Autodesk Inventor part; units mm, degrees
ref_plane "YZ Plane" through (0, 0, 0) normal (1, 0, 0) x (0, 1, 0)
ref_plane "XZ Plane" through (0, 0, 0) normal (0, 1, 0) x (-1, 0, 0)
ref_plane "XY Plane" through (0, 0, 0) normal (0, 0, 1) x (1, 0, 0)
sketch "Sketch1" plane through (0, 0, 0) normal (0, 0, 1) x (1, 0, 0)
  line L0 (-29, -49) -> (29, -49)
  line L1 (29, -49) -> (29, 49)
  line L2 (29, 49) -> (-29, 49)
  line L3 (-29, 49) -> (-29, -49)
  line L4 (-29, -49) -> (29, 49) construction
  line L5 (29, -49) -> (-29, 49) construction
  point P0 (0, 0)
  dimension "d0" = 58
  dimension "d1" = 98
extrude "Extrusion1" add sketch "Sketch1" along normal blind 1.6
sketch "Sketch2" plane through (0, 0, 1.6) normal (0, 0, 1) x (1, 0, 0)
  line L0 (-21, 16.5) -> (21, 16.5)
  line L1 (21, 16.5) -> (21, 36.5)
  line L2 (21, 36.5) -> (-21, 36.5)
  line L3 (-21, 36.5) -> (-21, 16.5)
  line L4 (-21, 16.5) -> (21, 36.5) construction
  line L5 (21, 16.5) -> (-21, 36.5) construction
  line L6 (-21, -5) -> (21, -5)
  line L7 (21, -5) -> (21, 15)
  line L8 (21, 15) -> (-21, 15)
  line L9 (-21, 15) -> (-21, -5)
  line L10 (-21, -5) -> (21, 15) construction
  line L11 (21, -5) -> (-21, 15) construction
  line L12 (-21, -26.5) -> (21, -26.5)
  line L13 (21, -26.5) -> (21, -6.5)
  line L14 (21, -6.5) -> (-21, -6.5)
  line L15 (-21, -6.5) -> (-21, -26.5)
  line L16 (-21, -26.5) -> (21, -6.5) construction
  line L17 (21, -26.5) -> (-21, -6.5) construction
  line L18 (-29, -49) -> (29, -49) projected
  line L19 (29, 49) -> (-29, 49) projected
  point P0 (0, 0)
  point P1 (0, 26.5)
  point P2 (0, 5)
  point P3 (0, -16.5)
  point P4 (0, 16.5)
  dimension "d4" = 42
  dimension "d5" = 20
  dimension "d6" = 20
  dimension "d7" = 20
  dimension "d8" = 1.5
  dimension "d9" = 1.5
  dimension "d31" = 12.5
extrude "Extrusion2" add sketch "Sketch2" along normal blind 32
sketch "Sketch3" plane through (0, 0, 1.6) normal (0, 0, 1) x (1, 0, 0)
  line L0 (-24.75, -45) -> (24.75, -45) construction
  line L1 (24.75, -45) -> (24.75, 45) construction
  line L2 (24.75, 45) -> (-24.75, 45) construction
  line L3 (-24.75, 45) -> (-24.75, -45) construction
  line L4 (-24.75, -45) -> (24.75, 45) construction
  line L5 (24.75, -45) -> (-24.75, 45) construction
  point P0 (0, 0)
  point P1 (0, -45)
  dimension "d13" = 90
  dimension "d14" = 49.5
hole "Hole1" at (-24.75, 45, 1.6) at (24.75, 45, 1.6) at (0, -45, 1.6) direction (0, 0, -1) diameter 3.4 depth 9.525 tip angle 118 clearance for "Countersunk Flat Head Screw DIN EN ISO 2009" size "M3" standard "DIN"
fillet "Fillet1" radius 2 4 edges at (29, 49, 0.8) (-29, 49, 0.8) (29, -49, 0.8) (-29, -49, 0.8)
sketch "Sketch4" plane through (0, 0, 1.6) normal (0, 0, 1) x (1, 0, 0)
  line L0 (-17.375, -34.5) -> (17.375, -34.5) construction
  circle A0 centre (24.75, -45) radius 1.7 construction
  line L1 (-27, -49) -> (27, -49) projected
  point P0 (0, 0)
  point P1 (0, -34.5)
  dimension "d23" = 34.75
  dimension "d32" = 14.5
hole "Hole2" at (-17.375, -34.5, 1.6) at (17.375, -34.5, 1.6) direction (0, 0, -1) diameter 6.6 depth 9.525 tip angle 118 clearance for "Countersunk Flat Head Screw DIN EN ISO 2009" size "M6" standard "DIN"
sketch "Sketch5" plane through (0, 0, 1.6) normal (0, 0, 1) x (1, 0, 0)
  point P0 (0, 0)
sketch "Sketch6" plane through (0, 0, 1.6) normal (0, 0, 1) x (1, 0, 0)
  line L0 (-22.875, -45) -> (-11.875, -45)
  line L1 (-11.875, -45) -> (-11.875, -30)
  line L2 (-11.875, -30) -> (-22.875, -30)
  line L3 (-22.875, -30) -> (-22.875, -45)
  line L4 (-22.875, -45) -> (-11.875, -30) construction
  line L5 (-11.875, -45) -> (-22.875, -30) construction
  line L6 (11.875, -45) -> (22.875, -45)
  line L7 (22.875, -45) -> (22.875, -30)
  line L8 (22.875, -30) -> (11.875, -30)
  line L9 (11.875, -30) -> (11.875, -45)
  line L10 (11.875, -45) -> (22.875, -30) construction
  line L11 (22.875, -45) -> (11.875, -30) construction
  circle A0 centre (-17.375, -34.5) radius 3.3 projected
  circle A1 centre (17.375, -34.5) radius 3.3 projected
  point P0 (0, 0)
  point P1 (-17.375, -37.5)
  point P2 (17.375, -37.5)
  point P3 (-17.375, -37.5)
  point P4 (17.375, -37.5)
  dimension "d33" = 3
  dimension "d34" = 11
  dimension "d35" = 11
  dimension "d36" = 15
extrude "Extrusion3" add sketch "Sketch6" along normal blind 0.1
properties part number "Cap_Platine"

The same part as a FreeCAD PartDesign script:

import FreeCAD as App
import Part
import Sketcher

V = App.Vector
Q = App.Units.Quantity


def edges_at(feature, points):
    """Names of the edges that pass closest to the given points."""
    edges = feature.Shape.Edges
    near = lambda p: min(range(len(edges)), key=lambda i: edges[i].distToShape(Part.Vertex(*p))[0])
    return sorted({f"Edge{near(p) + 1}" for p in points})

doc = App.newDocument("Part")
params = doc.addObject("Spreadsheet::Sheet", "Params")
for row, (alias, value) in enumerate([
    ("sketch1_width", "58 mm"),
    ("sketch1_height", "98 mm"),
    ("pad1_length", "1.6 mm"),
    ("sketch2_width", "42 mm"),
    ("sketch2_height", "20 mm"),
    ("pad2_length", "32 mm"),
    ("sketch3_diameter", "3.4 mm"),
    ("hole_diameter", "3.4 mm"),
    ("hole_depth", "9.525 mm"),
    ("fillet_radius", "2 mm"),
    ("sketch4_diameter", "6.6 mm"),
    ("hole2_diameter", "6.6 mm"),
    ("hole2_depth", "9.525 mm"),
    ("sketch5_width", "11 mm"),
    ("sketch5_height", "15 mm"),
    ("sketch5_diameter", "6.6 mm"),
    ("pad3_length", "0.1 mm"),
], start=1):
    params.set(f"A{row}", alias)
    params.set(f"B{row}", "=" + value)
    params.setAlias(f"B{row}", alias)

body = doc.addObject("PartDesign::Body", "Body")

# Sketch on XY plane
sketch1 = body.newObject("Sketcher::SketchObject", "Sketch")
sketch1.AttachmentSupport = (doc.getObject("XY_Plane"), [""])
sketch1.MapMode = "FlatFace"
sketch1.addGeometry([
    Part.LineSegment(V(-29, 49, 0), V(-29, -49, 0)),
    Part.LineSegment(V(-29, -49, 0), V(29, -49, 0)),
    Part.LineSegment(V(29, -49, 0), V(29, 49, 0)),
    Part.LineSegment(V(29, 49, 0), V(-29, 49, 0)),
], False)
sketch1.addConstraint([
    Sketcher.Constraint("Coincident", 0, 2, 1, 1),
    Sketcher.Constraint("Coincident", 1, 2, 2, 1),
    Sketcher.Constraint("Coincident", 2, 2, 3, 1),
    Sketcher.Constraint("Coincident", 3, 2, 0, 1),
    Sketcher.Constraint("Vertical", 0),
    Sketcher.Constraint("Horizontal", 1),
    Sketcher.Constraint("Vertical", 2),
    Sketcher.Constraint("Horizontal", 3),
    Sketcher.Constraint("Symmetric", 0, 2, 2, 2, -1, 1),
    Sketcher.Constraint("DistanceX", 1, 1, 1, 2, Q("58 mm")),
    Sketcher.Constraint("DistanceY", 0, 2, 0, 1, Q("98 mm")),
])
sketch1.setExpression("Constraints[9]", "Params.sketch1_width")
sketch1.setExpression("Constraints[10]", "Params.sketch1_height")
pad1 = body.newObject("PartDesign::Pad", "Pad")
pad1.Profile = sketch1
pad1.setExpression("Length", "Params.pad1_length")

# Sketch on XY plane
sketch2 = body.newObject("Sketcher::SketchObject", "Sketch001")
sketch2.AttachmentSupport = (doc.getObject("XY_Plane"), [""])
sketch2.MapMode = "FlatFace"
sketch2.AttachmentOffset = App.Placement(V(0, 0, 1.6), App.Rotation())
sketch2.addGeometry([
    Part.LineSegment(V(-21, 36, 0), V(-21, 16, 0)),  # 0
    Part.LineSegment(V(-21, 16, 0), V(21, 16, 0)),  # 1
    Part.LineSegment(V(21, 16, 0), V(21, 36, 0)),  # 2
    Part.LineSegment(V(21, 36, 0), V(-21, 36, 0)),  # 3
    Part.LineSegment(V(-21, 15, 0), V(-21, -5, 0)),  # 4
    Part.LineSegment(V(-21, -5, 0), V(21, -5, 0)),  # 5
    Part.LineSegment(V(21, -5, 0), V(21, 15, 0)),  # 6
    Part.LineSegment(V(21, 15, 0), V(-21, 15, 0)),  # 7
    Part.LineSegment(V(-21, -6, 0), V(-21, -26, 0)),  # 8
    Part.LineSegment(V(-21, -26, 0), V(21, -26, 0)),  # 9
    Part.LineSegment(V(21, -26, 0), V(21, -6, 0)),  # 10
    Part.LineSegment(V(21, -6, 0), V(-21, -6, 0)),  # 11
], False)
sketch2.addConstraint([
    Sketcher.Constraint("Coincident", 0, 2, 1, 1),
    Sketcher.Constraint("Coincident", 1, 2, 2, 1),
    Sketcher.Constraint("Coincident", 2, 2, 3, 1),
    Sketcher.Constraint("Coincident", 3, 2, 0, 1),
    Sketcher.Constraint("Coincident", 4, 2, 5, 1),
    Sketcher.Constraint("Coincident", 5, 2, 6, 1),
    Sketcher.Constraint("Coincident", 6, 2, 7, 1),
    Sketcher.Constraint("Coincident", 7, 2, 4, 1),
    Sketcher.Constraint("Coincident", 8, 2, 9, 1),
    Sketcher.Constraint("Coincident", 9, 2, 10, 1),
    Sketcher.Constraint("Coincident", 10, 2, 11, 1),
    Sketcher.Constraint("Coincident", 11, 2, 8, 1),
    Sketcher.Constraint("Vertical", 0),
    Sketcher.Constraint("Horizontal", 1),
    Sketcher.Constraint("Vertical", 2),
    Sketcher.Constraint("Horizontal", 3),
    Sketcher.Constraint("Vertical", 4),
    Sketcher.Constraint("Horizontal", 5),
    Sketcher.Constraint("Vertical", 6),
    Sketcher.Constraint("Horizontal", 7),
    Sketcher.Constraint("Vertical", 8),
    Sketcher.Constraint("Horizontal", 9),
    Sketcher.Constraint("Vertical", 10),
    Sketcher.Constraint("Horizontal", 11),
    Sketcher.Constraint("Vertical", 3, 2, 4, 2),
    Sketcher.Constraint("Vertical", 2, 2, 5, 2),
    Sketcher.Constraint("Vertical", 7, 2, 8, 2),
    Sketcher.Constraint("Vertical", 6, 2, 9, 2),
    Sketcher.Constraint("Equal", 2, 4),
    Sketcher.Constraint("Equal", 6, 8),
    Sketcher.Constraint("DistanceX", 1, 1, 1, 2, Q("42 mm")),
    Sketcher.Constraint("DistanceY", 0, 2, 0, 1, Q("20 mm")),
    Sketcher.Constraint("DistanceY", 6, 2, 1, 2, Q("1.5 mm")),
    Sketcher.Constraint("DistanceY", 10, 2, 5, 2, Q("1.5 mm")),
    Sketcher.Constraint("DistanceX", 0, 2, -1, 1, Q("21 mm")),
    Sketcher.Constraint("DistanceY", 4, 2, -1, 1, Q("5 mm")),
])
sketch2.setExpression("Constraints[30]", "Params.sketch2_width")
sketch2.setExpression("Constraints[31]", "Params.sketch2_height")
pad2 = body.newObject("PartDesign::Pad", "Pad001")
pad2.Profile = sketch2
pad2.setExpression("Length", "Params.pad2_length")

# Sketch on XY plane
sketch3 = body.newObject("Sketcher::SketchObject", "Sketch002")
sketch3.AttachmentSupport = (doc.getObject("XY_Plane"), [""])
sketch3.MapMode = "FlatFace"
sketch3.AttachmentOffset = App.Placement(V(0, 0, 1.6), App.Rotation())
sketch3.addGeometry([
    Part.Circle(V(-24.8, 45, 0), V(0, 0, 1), 1.7),
    Part.Circle(V(24.8, 45, 0), V(0, 0, 1), 1.7),
    Part.Circle(V(0, -45, 0), V(0, 0, 1), 1.7),
], False)
sketch3.addConstraint([
    Sketcher.Constraint("Equal", 0, 1),
    Sketcher.Constraint("Equal", 1, 2),
    Sketcher.Constraint("Symmetric", 0, 3, 1, 3, -2),
    Sketcher.Constraint("PointOnObject", 2, 3, -2),
    Sketcher.Constraint("Diameter", 0, Q("3.4 mm")),
    Sketcher.Constraint("DistanceY", -1, 1, 0, 3, Q("45 mm")),
    Sketcher.Constraint("DistanceY", 2, 3, -1, 1, Q("45 mm")),
    Sketcher.Constraint("DistanceX", 0, 3, 1, 3, Q("49.5 mm")),
])
sketch3.setExpression("Constraints[4]", "Params.sketch3_diameter")
doc.recompute()
hole = body.newObject("PartDesign::Hole", "Hole")
hole.Profile = sketch3
hole.ThreadType = "None"
hole.setExpression("Diameter", "Params.hole_diameter")
hole.DepthType = "Dimension"
hole.setExpression("Depth", "Params.hole_depth")
hole.DrillPoint = "Angled"
hole.DrillPointAngle = 118
doc.recompute()

fillet = body.newObject("PartDesign::Fillet", "Fillet")
fillet.Base = (hole, edges_at(hole, [
    (29, 49, 0.8),
    (-29, 49, 0.8),
    (29, -49, 0.8),
    (-29, -49, 0.8),
]))
fillet.setExpression("Radius", "Params.fillet_radius")

# Sketch on XY plane
sketch4 = body.newObject("Sketcher::SketchObject", "Sketch003")
sketch4.AttachmentSupport = (doc.getObject("XY_Plane"), [""])
sketch4.MapMode = "FlatFace"
sketch4.AttachmentOffset = App.Placement(V(0, 0, 1.6), App.Rotation())
sketch4.addGeometry([
    Part.Circle(V(-17.4, -34.5, 0), V(0, 0, 1), 3.3),
    Part.Circle(V(17.4, -34.5, 0), V(0, 0, 1), 3.3),
], False)
sketch4.addConstraint([
    Sketcher.Constraint("Equal", 0, 1),
    Sketcher.Constraint("Symmetric", 0, 3, 1, 3, -2),
    Sketcher.Constraint("Diameter", 0, Q("6.6 mm")),
    Sketcher.Constraint("DistanceY", 0, 3, -1, 1, Q("34.5 mm")),
    Sketcher.Constraint("DistanceX", 0, 3, 1, 3, Q("34.75 mm")),
])
sketch4.setExpression("Constraints[2]", "Params.sketch4_diameter")
doc.recompute()
hole2 = body.newObject("PartDesign::Hole", "Hole001")
hole2.Profile = sketch4
hole2.ThreadType = "None"
hole2.setExpression("Diameter", "Params.hole2_diameter")
hole2.DepthType = "Dimension"
hole2.setExpression("Depth", "Params.hole2_depth")
hole2.DrillPoint = "Angled"
hole2.DrillPointAngle = 118

# Sketch on XY plane
sketch5 = body.newObject("Sketcher::SketchObject", "Sketch004")
sketch5.AttachmentSupport = (doc.getObject("XY_Plane"), [""])
sketch5.MapMode = "FlatFace"
sketch5.AttachmentOffset = App.Placement(V(0, 0, 1.6), App.Rotation())
sketch5.addGeometry([
    Part.LineSegment(V(-22.9, -30, 0), V(-22.9, -45, 0)),  # 0
    Part.LineSegment(V(-22.9, -45, 0), V(-11.9, -45, 0)),  # 1
    Part.LineSegment(V(-11.9, -45, 0), V(-11.9, -30, 0)),  # 2
    Part.LineSegment(V(-11.9, -30, 0), V(-22.9, -30, 0)),  # 3
    Part.Circle(V(-17.4, -34.5, 0), V(0, 0, 1), 3.3),  # 4
    Part.LineSegment(V(11.9, -30, 0), V(11.9, -45, 0)),  # 5
    Part.LineSegment(V(11.9, -45, 0), V(22.9, -45, 0)),  # 6
    Part.LineSegment(V(22.9, -45, 0), V(22.9, -30, 0)),  # 7
    Part.LineSegment(V(22.9, -30, 0), V(11.9, -30, 0)),  # 8
    Part.Circle(V(17.4, -34.5, 0), V(0, 0, 1), 3.3),  # 9
], False)
sketch5.addConstraint([
    Sketcher.Constraint("Coincident", 0, 2, 1, 1),
    Sketcher.Constraint("Coincident", 1, 2, 2, 1),
    Sketcher.Constraint("Coincident", 2, 2, 3, 1),
    Sketcher.Constraint("Coincident", 3, 2, 0, 1),
    Sketcher.Constraint("Coincident", 5, 2, 6, 1),
    Sketcher.Constraint("Coincident", 6, 2, 7, 1),
    Sketcher.Constraint("Coincident", 7, 2, 8, 1),
    Sketcher.Constraint("Coincident", 8, 2, 5, 1),
    Sketcher.Constraint("Vertical", 0),
    Sketcher.Constraint("Horizontal", 1),
    Sketcher.Constraint("Vertical", 2),
    Sketcher.Constraint("Horizontal", 3),
    Sketcher.Constraint("Vertical", 5),
    Sketcher.Constraint("Horizontal", 6),
    Sketcher.Constraint("Vertical", 7),
    Sketcher.Constraint("Horizontal", 8),
    Sketcher.Constraint("Equal", 4, 9),
    Sketcher.Constraint("Symmetric", 4, 3, 9, 3, -2),
    Sketcher.Constraint("Symmetric", 1, 2, 5, 2, -2),
    Sketcher.Constraint("Symmetric", 3, 2, 7, 2, -2),
    Sketcher.Constraint("DistanceX", 1, 1, 1, 2, Q("11 mm")),
    Sketcher.Constraint("DistanceY", 0, 2, 0, 1, Q("15 mm")),
    Sketcher.Constraint("Diameter", 4, Q("6.6 mm")),
    Sketcher.Constraint("DistanceY", 0, 2, -1, 1, Q("45 mm")),
    Sketcher.Constraint("DistanceY", 4, 3, -1, 1, Q("34.5 mm")),
    Sketcher.Constraint("DistanceX", 0, 2, 4, 3, Q("5.5 mm")),
    Sketcher.Constraint("DistanceX", 4, 3, 9, 3, Q("34.75 mm")),
])
sketch5.setExpression("Constraints[20]", "Params.sketch5_width")
sketch5.setExpression("Constraints[21]", "Params.sketch5_height")
sketch5.setExpression("Constraints[22]", "Params.sketch5_diameter")
pad3 = body.newObject("PartDesign::Pad", "Pad002")
pad3.Profile = sketch5
pad3.setExpression("Length", "Params.pad3_length")

doc.recompute()
